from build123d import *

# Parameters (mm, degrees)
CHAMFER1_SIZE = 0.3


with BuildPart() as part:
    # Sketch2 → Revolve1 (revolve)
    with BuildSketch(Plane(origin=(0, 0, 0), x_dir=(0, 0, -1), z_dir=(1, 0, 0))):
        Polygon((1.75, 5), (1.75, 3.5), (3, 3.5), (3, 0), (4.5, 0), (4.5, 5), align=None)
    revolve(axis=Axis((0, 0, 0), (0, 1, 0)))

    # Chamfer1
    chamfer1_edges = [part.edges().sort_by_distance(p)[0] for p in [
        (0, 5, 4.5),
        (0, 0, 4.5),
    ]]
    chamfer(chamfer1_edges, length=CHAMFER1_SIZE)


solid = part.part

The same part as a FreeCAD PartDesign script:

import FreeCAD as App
import Part
import Sketcher
from FreeCAD import Vector
Q = App.Units.Quantity


def edges_at(feature, points):
    """Names of the edges that pass closest to the given points."""
    edges = feature.Shape.Edges
    near = lambda p: min(range(len(edges)), key=lambda i: edges[i].distToShape(Part.Vertex(*p))[0])
    return sorted({f"Edge{near(p) + 1}" for p in points})


def add_polygon(sketch, points):
    """Adds a closed chain of lines whose ends are joined by coincident constraints."""
    first, n = sketch.GeometryCount, len(points)
    for a, b in zip(points, points[1:] + points[:1]):
        sketch.addGeometry(Part.LineSegment(App.Vector(*a, 0), App.Vector(*b, 0)), False)
    for i in range(n):
        sketch.addConstraint(Sketcher.Constraint("Coincident", first + i, 2, first + (i + 1) % n, 1))

doc = App.newDocument("Part")
params = doc.addObject("Spreadsheet::Sheet", "Params")
for row, (alias, value) in enumerate([
    ("sketch1_width", "5 mm"),
    ("sketch1_width2", "1.5 mm"),
    ("sketch1_height", "1.25 mm"),
    ("revolution_angle", "360 deg"),
    ("chamfer_size", "0.3 mm"),
], start=1):
    params.set(f"A{row}", alias)
    params.set(f"B{row}", "=" + value)
    params.setAlias(f"B{row}", alias)

body = doc.addObject("PartDesign::Body", "Body")

# Sketch on YZ plane
sketch1 = body.newObject("Sketcher::SketchObject", "Sketch")
sketch1.AttachmentSupport = (doc.getObject("YZ_Plane"), [""])
sketch1.MapMode = "FlatFace"
add_polygon(sketch1, [(5, -1.8), (3.5, -1.8), (3.5, -3), (0, -3), (0, -4.5), (5, -4.5)])  # lines 0-5
sketch1.addConstraint([
    Sketcher.Constraint("Horizontal", 0),
    Sketcher.Constraint("Vertical", 1),
    Sketcher.Constraint("Horizontal", 2),
    Sketcher.Constraint("Vertical", 3),
    Sketcher.Constraint("Horizontal", 4),
    Sketcher.Constraint("Vertical", 5),
    Sketcher.Constraint("PointOnObject", 2, 2, -2),
    Sketcher.Constraint("Equal", 0, 3),
    Sketcher.Constraint("DistanceX", 4, 1, 4, 2, Q("5 mm")),
    Sketcher.Constraint("DistanceX", 0, 2, 0, 1, Q("1.5 mm")),
    Sketcher.Constraint("DistanceY", 1, 2, -1, 1, Q("3 mm")),
    Sketcher.Constraint("DistanceY", 1, 2, 1, 1, Q("1.25 mm")),
])
sketch1.setExpression("Constraints[14]", "Params.sketch1_width")
sketch1.setExpression("Constraints[15]", "Params.sketch1_width2")
sketch1.setExpression("Constraints[17]", "Params.sketch1_height")
revolution = body.newObject("PartDesign::Revolution", "Revolution")
revolution.Profile = sketch1
revolution.ReferenceAxis = (sketch1, ["H_Axis"])
revolution.setExpression("Angle", "Params.revolution_angle")
doc.recompute()

chamfer = body.newObject("PartDesign::Chamfer", "Chamfer")
chamfer.Base = (revolution, edges_at(revolution, [(0, 5, 4.5), (0, 0, 4.5)]))
chamfer.setExpression("Size", "Params.chamfer_size")

doc.recompute()
